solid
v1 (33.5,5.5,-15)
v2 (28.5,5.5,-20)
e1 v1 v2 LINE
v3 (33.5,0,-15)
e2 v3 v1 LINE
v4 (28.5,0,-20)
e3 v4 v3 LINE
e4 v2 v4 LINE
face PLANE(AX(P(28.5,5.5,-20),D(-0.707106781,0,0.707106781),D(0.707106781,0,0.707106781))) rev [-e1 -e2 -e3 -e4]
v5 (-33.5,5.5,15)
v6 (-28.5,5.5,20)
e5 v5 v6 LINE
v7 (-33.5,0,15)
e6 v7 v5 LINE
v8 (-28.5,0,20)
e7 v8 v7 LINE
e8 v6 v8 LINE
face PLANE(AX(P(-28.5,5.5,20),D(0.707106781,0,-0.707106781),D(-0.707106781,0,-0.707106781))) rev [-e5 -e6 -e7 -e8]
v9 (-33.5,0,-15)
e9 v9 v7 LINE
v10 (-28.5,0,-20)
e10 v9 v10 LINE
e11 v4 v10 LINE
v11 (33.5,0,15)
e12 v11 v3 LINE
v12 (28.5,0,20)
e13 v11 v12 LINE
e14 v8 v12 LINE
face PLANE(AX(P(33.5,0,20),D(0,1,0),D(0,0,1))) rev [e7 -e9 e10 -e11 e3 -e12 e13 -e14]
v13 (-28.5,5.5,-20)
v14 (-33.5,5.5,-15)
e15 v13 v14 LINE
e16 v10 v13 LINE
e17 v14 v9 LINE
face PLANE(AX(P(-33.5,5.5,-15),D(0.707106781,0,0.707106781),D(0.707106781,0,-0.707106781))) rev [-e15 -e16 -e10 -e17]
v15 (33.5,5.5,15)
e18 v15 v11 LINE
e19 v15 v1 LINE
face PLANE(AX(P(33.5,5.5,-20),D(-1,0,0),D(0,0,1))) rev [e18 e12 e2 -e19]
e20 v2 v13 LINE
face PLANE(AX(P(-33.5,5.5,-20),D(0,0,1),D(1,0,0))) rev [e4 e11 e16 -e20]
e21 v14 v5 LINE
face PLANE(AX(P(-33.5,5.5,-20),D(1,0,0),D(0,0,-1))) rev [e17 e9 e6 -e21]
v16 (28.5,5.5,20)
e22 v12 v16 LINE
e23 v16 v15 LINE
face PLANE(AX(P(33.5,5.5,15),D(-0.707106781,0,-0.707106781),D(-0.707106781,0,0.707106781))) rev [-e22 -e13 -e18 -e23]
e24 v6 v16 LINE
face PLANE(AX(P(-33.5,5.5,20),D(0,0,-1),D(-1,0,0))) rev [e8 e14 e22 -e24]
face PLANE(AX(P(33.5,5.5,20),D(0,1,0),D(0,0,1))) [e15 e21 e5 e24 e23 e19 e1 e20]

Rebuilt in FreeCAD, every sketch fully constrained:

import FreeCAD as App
import Part
import Sketcher

V = App.Vector


def edges_at(feature, points):
    """Names of the edges that pass closest to the given points."""
    edges = feature.Shape.Edges
    near = lambda p: min(range(len(edges)), key=lambda i: edges[i].distToShape(Part.Vertex(*p))[0])
    return sorted({f"Edge{near(p) + 1}" for p in points})

doc = App.newDocument("Part")
body = doc.addObject("PartDesign::Body", "Body")

sketch1 = doc.addObject("Sketcher::SketchObject", "Sketch")
body.addObject(sketch1)
sketch1.AttachmentSupport = (doc.XZ_Plane, [""])
sketch1.MapMode = "FlatFace"
sketch1.addGeometry([
    Part.LineSegment(V(-34, -20, 0), V(-34, 20, 0)),
    Part.LineSegment(V(-34, 20, 0), V(34, 20, 0)),
    Part.LineSegment(V(34, 20, 0), V(34, -20, 0)),
    Part.LineSegment(V(34, -20, 0), V(-34, -20, 0)),
], False)
sketch1.addConstraint([
    Sketcher.Constraint("Coincident", 0, 2, 1, 1),
    Sketcher.Constraint("Coincident", 1, 2, 2, 1),
    Sketcher.Constraint("Coincident", 2, 2, 3, 1),
    Sketcher.Constraint("Coincident", 3, 2, 0, 1),
    Sketcher.Constraint("Vertical", 0),
    Sketcher.Constraint("Horizontal", 1),
    Sketcher.Constraint("Vertical", 2),
    Sketcher.Constraint("Horizontal", 3),
    Sketcher.Constraint("Symmetric", 0, 2, 2, 2, -1, 1),
    Sketcher.Constraint("DistanceX", 1, 1, 1, 2, 67.0),
    Sketcher.Constraint("DistanceY", 0, 1, 0, 2, 40.0),
])
pad1 = doc.addObject("PartDesign::Pad", "Pad")
body.addObject(pad1)
pad1.Profile = sketch1
pad1.Length = 5.5
pad1.Reversed = True
doc.recompute()

chamfer = doc.addObject("PartDesign::Chamfer", "Chamfer")
body.addObject(chamfer)
chamfer.Base = (pad1, edges_at(pad1, [
    (33.5, 2.75, 20),
    (-33.5, 2.75, 20),
    (-33.5, 2.75, -20),
    (33.5, 2.75, -20),
]))
chamfer.Size = 5

doc.recompute()
